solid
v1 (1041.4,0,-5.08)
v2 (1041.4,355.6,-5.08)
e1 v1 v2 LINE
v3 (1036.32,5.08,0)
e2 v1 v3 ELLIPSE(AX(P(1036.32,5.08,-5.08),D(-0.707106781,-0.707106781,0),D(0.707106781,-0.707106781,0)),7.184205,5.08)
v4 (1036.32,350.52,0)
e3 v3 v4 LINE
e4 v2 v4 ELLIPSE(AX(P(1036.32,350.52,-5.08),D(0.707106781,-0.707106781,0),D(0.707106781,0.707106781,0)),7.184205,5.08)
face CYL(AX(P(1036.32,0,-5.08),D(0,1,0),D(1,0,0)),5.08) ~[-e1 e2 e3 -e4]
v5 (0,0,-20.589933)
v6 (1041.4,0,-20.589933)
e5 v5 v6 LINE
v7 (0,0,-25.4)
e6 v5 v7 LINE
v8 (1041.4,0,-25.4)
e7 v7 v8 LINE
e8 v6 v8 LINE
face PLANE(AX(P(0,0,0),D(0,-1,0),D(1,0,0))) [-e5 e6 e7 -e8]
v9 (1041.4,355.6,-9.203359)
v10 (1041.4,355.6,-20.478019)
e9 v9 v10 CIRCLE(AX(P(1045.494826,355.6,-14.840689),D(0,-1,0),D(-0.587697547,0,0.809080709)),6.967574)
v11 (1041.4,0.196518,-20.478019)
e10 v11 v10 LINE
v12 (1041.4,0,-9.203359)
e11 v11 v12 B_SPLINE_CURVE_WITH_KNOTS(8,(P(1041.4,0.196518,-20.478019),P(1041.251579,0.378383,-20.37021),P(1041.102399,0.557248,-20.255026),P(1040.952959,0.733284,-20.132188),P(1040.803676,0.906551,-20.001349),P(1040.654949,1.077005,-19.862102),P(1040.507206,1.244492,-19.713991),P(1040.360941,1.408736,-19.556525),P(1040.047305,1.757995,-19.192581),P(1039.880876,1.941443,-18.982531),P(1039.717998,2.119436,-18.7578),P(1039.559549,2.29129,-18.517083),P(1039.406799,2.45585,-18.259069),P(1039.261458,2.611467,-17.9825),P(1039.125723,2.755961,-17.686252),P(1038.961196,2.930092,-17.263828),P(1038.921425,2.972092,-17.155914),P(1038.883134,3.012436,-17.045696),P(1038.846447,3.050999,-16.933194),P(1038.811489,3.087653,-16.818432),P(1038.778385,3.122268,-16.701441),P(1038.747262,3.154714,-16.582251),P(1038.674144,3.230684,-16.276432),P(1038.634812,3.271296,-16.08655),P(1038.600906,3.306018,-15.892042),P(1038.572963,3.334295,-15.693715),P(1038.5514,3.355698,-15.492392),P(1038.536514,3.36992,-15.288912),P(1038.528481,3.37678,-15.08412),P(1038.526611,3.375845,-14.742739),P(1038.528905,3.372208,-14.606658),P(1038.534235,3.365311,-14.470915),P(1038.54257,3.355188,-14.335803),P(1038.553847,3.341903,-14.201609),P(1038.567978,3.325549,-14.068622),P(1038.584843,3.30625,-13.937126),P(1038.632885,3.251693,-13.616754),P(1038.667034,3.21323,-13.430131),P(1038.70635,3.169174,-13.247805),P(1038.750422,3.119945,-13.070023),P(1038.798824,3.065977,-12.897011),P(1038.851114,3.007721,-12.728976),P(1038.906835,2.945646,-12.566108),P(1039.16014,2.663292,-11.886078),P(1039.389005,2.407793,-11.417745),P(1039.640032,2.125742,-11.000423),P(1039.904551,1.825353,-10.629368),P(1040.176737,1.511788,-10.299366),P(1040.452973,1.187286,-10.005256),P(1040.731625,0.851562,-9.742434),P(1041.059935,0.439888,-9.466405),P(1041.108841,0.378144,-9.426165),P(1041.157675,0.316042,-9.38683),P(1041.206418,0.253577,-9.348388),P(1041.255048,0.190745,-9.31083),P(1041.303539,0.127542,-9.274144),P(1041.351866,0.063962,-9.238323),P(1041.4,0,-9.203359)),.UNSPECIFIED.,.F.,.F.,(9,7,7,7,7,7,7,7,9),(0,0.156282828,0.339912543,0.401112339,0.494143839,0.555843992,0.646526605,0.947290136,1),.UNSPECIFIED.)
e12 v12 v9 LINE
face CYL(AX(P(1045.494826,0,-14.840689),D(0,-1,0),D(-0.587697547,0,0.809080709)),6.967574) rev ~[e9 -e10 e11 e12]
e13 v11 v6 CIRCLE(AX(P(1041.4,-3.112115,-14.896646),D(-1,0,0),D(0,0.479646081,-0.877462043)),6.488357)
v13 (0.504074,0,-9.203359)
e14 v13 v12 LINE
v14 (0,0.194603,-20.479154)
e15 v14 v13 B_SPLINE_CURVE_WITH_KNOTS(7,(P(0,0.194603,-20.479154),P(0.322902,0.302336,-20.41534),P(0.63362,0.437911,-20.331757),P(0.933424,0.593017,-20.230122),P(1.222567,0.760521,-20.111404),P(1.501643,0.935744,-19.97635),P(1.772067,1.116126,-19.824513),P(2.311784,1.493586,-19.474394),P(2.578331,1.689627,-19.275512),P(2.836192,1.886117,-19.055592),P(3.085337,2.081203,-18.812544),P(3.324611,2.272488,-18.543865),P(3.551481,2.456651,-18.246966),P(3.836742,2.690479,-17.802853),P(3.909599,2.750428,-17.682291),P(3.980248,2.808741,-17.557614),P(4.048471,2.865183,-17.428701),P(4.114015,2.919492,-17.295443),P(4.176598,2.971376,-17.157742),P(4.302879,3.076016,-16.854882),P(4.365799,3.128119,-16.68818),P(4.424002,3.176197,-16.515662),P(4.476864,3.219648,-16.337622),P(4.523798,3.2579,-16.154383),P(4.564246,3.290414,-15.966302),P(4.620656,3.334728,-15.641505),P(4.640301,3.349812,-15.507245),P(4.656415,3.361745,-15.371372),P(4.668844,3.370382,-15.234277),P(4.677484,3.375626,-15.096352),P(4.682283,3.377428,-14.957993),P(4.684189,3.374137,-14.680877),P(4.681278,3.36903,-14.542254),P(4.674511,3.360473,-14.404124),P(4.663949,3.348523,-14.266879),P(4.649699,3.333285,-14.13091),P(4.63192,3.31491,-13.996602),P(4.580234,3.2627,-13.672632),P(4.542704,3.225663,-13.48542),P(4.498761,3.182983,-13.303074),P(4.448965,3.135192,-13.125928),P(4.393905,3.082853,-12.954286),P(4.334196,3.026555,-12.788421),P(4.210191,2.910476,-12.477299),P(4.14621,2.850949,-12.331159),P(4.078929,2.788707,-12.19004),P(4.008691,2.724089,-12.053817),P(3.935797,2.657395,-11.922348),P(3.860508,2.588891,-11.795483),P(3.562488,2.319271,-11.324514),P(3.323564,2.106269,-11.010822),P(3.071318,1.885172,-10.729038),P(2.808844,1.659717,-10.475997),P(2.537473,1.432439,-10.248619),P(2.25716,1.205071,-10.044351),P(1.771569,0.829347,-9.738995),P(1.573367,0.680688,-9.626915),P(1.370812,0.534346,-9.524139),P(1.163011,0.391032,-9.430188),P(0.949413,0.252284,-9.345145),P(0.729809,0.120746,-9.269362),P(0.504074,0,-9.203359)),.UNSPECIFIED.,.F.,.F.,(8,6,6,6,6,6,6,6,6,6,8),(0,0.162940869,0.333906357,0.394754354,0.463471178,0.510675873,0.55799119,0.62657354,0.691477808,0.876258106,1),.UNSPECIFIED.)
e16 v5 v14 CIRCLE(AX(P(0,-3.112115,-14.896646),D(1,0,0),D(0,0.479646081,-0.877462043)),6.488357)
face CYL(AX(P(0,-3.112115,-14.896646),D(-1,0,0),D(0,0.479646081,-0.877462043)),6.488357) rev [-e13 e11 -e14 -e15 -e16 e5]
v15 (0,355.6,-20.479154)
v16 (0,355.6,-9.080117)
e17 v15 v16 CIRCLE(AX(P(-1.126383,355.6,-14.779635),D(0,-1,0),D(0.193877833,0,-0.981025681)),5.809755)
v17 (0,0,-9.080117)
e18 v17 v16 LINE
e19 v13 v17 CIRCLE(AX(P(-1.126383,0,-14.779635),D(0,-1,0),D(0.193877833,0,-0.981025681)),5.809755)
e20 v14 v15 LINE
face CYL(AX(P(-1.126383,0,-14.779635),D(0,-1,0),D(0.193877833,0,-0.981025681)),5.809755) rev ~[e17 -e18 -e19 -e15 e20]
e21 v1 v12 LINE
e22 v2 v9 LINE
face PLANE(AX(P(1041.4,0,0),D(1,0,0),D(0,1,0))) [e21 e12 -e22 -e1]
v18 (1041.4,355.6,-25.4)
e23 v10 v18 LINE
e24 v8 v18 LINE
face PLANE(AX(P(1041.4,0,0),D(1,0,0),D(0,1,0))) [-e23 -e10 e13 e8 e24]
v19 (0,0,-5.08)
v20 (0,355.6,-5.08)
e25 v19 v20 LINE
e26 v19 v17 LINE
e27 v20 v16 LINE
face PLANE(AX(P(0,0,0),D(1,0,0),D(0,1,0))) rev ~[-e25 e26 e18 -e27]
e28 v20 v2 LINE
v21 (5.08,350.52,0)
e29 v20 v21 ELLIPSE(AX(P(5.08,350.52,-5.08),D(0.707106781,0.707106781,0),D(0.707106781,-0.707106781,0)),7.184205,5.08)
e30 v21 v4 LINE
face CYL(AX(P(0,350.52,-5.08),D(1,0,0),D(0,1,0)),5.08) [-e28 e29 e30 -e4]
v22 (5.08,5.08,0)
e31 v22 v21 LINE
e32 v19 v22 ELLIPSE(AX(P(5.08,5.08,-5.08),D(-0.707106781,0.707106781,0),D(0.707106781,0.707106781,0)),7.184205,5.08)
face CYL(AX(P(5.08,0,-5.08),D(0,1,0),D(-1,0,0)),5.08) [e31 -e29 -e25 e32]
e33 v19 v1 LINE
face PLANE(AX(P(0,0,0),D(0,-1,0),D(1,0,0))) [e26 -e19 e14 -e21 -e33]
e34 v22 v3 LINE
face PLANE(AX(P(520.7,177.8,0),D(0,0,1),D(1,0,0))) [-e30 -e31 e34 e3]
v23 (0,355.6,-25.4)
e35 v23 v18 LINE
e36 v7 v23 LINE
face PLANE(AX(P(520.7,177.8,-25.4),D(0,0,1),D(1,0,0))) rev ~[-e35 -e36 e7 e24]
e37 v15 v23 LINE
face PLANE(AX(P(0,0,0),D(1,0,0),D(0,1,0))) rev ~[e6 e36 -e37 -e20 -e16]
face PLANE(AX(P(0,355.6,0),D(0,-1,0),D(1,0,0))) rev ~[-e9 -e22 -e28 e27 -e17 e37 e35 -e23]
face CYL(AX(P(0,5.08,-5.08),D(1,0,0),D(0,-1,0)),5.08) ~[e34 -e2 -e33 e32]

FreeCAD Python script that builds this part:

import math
import FreeCAD as App
import Part
import Sketcher

V = App.Vector
Q = App.Units.Quantity


def edges_at(feature, points):
    """Names of the edges that pass closest to the given points."""
    edges = feature.Shape.Edges
    near = lambda p: min(range(len(edges)), key=lambda i: edges[i].distToShape(Part.Vertex(*p))[0])
    return sorted({f"Edge{near(p) + 1}" for p in points})


def add_polygon(sketch, points):
    """Adds a closed chain of lines whose ends are joined by coincident constraints."""
    first, n = sketch.GeometryCount, len(points)
    for a, b in zip(points, points[1:] + points[:1]):
        sketch.addGeometry(Part.LineSegment(App.Vector(*a, 0), App.Vector(*b, 0)), False)
    for i in range(n):
        sketch.addConstraint(Sketcher.Constraint("Coincident", first + i, 2, first + (i + 1) % n, 1))

doc = App.newDocument("Part")
body = doc.addObject("PartDesign::Body", "Body")

sketch1 = body.newObject("Sketcher::SketchObject", "Sketch")
sketch1.AttachmentSupport = (doc.getObject("XY_Plane"), [""])
sketch1.MapMode = "FlatFace"
add_polygon(sketch1, [(0, 355.6), (0, 0), (1041.4, 0), (1041.4, 355.6)])
sketch1.addConstraint([
    Sketcher.Constraint("Vertical", 0),
    Sketcher.Constraint("Horizontal", 1),
    Sketcher.Constraint("Vertical", 2),
    Sketcher.Constraint("Horizontal", 3),
    Sketcher.Constraint("Coincident", 0, 2, -1, 1),
    Sketcher.Constraint("DistanceX", 1, 1, 1, 2, Q("41 in")),
    Sketcher.Constraint("DistanceY", 0, 2, 0, 1, Q("14 in")),
])
pad1 = body.newObject("PartDesign::Pad", "Pad")
pad1.Profile = sketch1
pad1.Length = Q("1 in")
pad1.Reversed = True
doc.recompute()

fillet = body.newObject("PartDesign::Fillet", "Fillet")
fillet.Base = (pad1, edges_at(pad1, [
    (520.7, 0, 0),
    (1041.4, 177.8, 0),
    (520.7, 355.6, 0),
    (0, 177.8, 0),
]))
fillet.Radius = Q("0.2 in")

sketch2 = body.newObject("Sketcher::SketchObject", "Sketch001")
sketch2.AttachmentSupport = (doc.getObject("XZ_Plane"), [""])
sketch2.MapMode = "FlatFace"
sketch2.addGeometry([
    Part.LineSegment(V(0, -9.080117, 0), V(0, -20.479154, 0)),
    Part.ArcOfCircle(Part.Circle(V(-1.126383, -14.779635, 0), V(0, 0, 1), 5.809755), math.radians(-78.820823), math.radians(78.820823)),
], False)
sketch2.addConstraint([
    Sketcher.Constraint("Coincident", 0, 1, 1, 2),
    Sketcher.Constraint("Coincident", 1, 1, 0, 2),
    Sketcher.Constraint("Vertical", 0),
    Sketcher.Constraint("PointOnObject", 0, 1, -2),
    Sketcher.Constraint("Radius", 1, Q("5.809755 mm")),
    Sketcher.Constraint("DistanceY", 0, 2, 0, 1, Q("11.399037 mm")),
    Sketcher.Constraint("DistanceY", 1, 3, -1, 1, Q("14.779635 mm")),
])
pocket1 = body.newObject("PartDesign::Pocket", "Pocket")
pocket1.Profile = sketch2
pocket1.Type = "ThroughAll"

sketch3 = body.newObject("Sketcher::SketchObject", "Sketch002")
sketch3.AttachmentSupport = (doc.getObject("YZ_Plane"), [""])
sketch3.MapMode = "FlatFace"
sketch3.addGeometry([
    Part.LineSegment(V(0, -9.203359, 0), V(0, -20.589933, 0)),
    Part.ArcOfCircle(Part.Circle(V(-3.112115, -14.896646, 0), V(0, 0, 1), 6.488357), math.radians(-61.33771), math.radians(61.33771)),
], False)
sketch3.addConstraint([
    Sketcher.Constraint("Coincident", 0, 1, 1, 2),
    Sketcher.Constraint("Coincident", 1, 1, 0, 2),
    Sketcher.Constraint("Vertical", 0),
    Sketcher.Constraint("PointOnObject", 0, 1, -2),
    Sketcher.Constraint("Radius", 1, Q("6.488357 mm")),
    Sketcher.Constraint("DistanceY", 0, 2, 0, 1, Q("11.386574 mm")),
    Sketcher.Constraint("DistanceY", 0, 1, -1, 1, Q("9.203359 mm")),
])
pocket2 = body.newObject("PartDesign::Pocket", "Pocket001")
pocket2.Profile = sketch3
pocket2.Type = "ThroughAll"
pocket2.Reversed = True

sketch4 = body.newObject("Sketcher::SketchObject", "Sketch003")
sketch4.AttachmentSupport = (doc.getObject("XZ_Plane"), [""])
sketch4.MapMode = "FlatFace"
sketch4.addGeometry([
    Part.LineSegment(V(1041.4, -20.478019, 0), V(1041.4, -9.203359, 0)),
    Part.ArcOfCircle(Part.Circle(V(1045.494826, -14.840689, 0), V(0, 0, 1), 6.967574), math.radians(125.993789), math.radians(234.006211)),
], False)
sketch4.addConstraint([
    Sketcher.Constraint("Coincident", 0, 1, 1, 2),
    Sketcher.Constraint("Coincident", 1, 1, 0, 2),
    Sketcher.Constraint("Vertical", 0),
    Sketcher.Constraint("DistanceX", -1, 1, 0, 1, Q("41 in")),
    Sketcher.Constraint("Radius", 1, Q("6.967574 mm")),
    Sketcher.Constraint("DistanceY", 0, 1, 0, 2, Q("11.27466 mm")),
    Sketcher.Constraint("DistanceY", 1, 3, -1, 1, Q("14.840689 mm")),
])
pocket3 = body.newObject("PartDesign::Pocket", "Pocket002")
pocket3.Profile = sketch4
pocket3.Type = "ThroughAll"

doc.recompute()
